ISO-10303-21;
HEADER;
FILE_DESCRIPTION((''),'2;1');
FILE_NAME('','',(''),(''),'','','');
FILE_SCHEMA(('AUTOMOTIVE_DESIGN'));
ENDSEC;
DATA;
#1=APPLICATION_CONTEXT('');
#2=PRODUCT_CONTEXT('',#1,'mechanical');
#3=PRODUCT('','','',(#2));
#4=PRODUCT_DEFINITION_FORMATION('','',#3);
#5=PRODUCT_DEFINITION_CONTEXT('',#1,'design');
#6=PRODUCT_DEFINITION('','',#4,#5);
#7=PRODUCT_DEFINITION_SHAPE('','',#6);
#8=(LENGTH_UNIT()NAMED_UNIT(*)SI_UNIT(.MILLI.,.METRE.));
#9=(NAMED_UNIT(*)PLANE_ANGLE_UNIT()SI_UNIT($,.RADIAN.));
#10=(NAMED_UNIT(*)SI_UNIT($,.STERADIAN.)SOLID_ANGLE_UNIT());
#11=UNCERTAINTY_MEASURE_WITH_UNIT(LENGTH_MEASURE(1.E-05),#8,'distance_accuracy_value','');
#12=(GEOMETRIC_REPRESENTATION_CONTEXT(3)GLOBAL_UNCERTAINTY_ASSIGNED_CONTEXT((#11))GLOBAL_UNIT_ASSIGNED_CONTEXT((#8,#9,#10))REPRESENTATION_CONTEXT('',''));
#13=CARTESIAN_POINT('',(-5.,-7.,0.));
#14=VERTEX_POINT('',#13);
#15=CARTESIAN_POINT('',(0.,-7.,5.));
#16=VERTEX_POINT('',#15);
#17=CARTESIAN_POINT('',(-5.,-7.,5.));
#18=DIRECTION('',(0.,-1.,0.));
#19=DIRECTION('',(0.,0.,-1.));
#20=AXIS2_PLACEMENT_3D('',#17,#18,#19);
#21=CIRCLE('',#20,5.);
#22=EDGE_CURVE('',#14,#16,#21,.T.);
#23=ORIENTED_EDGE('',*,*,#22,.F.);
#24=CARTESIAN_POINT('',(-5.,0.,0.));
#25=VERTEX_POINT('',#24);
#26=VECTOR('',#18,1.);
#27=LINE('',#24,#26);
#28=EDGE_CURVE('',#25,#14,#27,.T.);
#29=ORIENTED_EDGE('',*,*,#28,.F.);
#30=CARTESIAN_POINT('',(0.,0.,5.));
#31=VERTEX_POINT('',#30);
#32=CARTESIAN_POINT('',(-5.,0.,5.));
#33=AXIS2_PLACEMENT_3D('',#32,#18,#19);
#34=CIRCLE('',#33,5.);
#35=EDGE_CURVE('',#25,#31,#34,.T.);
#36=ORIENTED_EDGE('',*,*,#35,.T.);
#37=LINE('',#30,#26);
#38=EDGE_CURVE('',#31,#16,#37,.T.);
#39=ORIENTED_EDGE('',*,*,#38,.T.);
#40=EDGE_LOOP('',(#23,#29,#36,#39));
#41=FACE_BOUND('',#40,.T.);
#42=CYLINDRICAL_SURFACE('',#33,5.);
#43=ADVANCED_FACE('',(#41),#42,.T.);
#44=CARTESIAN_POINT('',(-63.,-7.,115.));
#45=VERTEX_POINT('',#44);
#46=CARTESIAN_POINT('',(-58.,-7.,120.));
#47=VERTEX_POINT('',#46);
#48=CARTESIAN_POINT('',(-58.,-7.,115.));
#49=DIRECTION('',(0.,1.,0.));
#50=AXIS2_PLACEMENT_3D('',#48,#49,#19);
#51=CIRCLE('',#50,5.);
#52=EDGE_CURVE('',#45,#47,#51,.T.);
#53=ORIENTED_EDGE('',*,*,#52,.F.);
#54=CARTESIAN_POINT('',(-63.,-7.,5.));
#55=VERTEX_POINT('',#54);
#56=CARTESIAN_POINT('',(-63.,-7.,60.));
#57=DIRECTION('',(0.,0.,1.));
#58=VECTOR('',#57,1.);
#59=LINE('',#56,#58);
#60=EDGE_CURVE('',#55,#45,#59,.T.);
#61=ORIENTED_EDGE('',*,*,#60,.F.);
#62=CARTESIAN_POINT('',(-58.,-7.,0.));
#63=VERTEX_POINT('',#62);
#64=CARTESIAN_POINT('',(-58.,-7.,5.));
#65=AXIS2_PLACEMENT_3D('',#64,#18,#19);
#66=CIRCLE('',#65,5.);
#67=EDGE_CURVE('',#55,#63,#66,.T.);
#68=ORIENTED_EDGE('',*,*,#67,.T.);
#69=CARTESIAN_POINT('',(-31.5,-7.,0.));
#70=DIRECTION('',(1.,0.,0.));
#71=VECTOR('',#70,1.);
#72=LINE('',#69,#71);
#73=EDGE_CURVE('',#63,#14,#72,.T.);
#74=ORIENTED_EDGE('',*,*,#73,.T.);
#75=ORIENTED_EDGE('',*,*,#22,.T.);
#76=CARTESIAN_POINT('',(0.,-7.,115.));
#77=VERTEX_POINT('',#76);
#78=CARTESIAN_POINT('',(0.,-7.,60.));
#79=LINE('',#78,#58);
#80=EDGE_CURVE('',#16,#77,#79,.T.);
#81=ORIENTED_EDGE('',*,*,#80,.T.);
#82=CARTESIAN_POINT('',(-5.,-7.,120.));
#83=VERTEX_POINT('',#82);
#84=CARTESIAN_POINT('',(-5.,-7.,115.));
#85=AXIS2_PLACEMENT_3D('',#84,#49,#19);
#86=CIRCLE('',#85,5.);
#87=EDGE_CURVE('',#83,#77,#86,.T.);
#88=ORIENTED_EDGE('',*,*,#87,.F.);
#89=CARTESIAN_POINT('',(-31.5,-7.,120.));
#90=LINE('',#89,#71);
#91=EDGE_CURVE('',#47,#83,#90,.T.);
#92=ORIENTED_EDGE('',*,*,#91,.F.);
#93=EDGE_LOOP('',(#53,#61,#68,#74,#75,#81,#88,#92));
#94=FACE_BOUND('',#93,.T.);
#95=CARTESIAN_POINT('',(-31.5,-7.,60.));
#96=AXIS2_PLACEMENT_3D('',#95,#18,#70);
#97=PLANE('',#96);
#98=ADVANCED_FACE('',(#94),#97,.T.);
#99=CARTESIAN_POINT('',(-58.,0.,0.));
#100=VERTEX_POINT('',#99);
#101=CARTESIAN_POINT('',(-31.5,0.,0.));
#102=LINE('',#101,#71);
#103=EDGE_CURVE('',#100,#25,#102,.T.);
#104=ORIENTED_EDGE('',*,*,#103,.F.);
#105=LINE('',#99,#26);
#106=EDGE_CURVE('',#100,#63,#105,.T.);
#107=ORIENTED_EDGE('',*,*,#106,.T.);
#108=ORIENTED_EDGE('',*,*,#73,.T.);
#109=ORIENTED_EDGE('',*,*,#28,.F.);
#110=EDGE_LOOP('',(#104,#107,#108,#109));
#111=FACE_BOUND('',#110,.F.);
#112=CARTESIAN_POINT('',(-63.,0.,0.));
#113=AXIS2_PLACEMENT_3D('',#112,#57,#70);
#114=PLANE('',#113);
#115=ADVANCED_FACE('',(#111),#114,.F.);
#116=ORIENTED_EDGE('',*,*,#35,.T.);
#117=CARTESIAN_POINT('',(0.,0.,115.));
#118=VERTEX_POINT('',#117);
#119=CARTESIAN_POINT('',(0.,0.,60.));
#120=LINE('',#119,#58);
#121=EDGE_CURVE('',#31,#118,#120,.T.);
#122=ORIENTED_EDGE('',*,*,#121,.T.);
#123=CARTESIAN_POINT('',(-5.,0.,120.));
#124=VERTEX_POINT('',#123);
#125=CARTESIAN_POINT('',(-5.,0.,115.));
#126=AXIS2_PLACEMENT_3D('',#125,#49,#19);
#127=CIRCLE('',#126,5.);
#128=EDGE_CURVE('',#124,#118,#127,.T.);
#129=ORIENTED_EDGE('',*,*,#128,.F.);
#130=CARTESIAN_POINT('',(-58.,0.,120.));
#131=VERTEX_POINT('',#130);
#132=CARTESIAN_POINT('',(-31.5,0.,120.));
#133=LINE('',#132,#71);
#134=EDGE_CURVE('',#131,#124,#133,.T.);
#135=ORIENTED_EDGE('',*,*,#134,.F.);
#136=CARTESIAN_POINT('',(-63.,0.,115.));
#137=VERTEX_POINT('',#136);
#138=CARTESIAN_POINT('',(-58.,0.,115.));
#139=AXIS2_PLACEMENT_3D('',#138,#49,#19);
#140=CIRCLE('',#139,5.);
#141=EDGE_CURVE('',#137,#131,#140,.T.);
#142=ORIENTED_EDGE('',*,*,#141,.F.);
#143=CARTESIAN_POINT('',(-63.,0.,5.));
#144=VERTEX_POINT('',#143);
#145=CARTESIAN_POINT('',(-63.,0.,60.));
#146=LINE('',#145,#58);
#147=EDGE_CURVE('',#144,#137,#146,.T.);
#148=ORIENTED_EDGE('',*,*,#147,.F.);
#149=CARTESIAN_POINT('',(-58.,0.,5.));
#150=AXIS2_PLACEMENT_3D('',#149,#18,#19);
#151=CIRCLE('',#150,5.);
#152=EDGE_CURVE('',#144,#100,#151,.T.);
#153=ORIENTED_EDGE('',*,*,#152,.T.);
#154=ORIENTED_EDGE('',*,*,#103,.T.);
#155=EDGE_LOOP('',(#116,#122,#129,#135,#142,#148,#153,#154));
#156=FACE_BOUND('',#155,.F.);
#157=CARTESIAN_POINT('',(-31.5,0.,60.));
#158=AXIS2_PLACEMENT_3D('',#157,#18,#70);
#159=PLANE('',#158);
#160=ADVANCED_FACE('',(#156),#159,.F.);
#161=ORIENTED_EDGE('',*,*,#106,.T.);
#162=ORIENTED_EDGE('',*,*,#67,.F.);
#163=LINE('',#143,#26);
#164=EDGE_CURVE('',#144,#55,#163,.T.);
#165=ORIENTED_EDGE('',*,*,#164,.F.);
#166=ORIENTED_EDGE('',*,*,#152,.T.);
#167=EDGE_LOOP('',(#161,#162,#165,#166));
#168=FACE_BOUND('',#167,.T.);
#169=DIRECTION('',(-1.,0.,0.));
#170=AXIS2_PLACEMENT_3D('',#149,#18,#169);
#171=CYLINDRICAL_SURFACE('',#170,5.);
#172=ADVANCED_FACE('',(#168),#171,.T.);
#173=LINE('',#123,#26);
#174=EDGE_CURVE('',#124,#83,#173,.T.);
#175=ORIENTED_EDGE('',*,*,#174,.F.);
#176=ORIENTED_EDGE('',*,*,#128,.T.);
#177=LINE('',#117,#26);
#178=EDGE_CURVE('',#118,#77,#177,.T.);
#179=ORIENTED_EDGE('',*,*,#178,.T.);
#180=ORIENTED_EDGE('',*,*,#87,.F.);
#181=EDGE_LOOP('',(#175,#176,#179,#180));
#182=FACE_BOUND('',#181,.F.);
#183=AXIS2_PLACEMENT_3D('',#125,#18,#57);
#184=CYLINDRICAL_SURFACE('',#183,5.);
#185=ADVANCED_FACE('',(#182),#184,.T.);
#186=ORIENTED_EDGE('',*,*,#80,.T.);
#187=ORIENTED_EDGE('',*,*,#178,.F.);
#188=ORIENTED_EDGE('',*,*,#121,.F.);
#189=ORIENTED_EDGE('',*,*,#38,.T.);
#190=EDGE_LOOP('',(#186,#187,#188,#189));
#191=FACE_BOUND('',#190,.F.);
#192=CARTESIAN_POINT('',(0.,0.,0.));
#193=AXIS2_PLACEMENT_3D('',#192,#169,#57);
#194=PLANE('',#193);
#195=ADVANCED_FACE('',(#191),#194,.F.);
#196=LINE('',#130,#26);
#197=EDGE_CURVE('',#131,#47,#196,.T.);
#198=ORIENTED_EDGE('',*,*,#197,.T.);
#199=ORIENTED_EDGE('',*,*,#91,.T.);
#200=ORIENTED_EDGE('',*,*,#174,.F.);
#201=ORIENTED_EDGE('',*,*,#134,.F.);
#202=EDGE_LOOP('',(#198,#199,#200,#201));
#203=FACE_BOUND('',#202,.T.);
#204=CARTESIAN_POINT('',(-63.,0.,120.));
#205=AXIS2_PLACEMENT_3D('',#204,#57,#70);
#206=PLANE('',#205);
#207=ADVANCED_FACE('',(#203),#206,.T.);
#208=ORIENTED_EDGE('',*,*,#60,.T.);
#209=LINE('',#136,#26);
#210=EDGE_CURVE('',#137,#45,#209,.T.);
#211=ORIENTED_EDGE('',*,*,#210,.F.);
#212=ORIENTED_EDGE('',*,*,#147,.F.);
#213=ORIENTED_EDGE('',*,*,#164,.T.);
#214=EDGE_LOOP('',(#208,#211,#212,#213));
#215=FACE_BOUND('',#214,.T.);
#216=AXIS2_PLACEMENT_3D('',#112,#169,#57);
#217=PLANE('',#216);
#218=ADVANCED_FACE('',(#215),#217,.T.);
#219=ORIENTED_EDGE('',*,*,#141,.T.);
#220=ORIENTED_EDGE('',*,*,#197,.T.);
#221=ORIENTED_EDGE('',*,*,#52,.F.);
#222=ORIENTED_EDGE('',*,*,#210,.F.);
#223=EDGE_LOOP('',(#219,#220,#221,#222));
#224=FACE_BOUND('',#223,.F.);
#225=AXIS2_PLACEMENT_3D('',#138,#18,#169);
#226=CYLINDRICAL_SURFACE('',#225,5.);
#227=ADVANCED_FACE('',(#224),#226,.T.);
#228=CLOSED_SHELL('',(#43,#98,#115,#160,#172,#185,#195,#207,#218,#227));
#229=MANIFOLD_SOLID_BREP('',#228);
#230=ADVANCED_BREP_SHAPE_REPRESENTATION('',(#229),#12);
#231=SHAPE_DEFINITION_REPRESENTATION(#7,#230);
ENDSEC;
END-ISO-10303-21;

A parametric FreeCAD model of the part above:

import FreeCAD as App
import Part
import Sketcher


def edges_at(feature, points):
    """Names of the edges that pass closest to the given points."""
    edges = feature.Shape.Edges
    near = lambda p: min(range(len(edges)), key=lambda i: edges[i].distToShape(Part.Vertex(*p))[0])
    return sorted({f"Edge{near(p) + 1}" for p in points})


def add_polygon(sketch, points):
    """Adds a closed chain of lines whose ends are joined by coincident constraints."""
    first, n = sketch.GeometryCount, len(points)
    for a, b in zip(points, points[1:] + points[:1]):
        sketch.addGeometry(Part.LineSegment(App.Vector(*a, 0), App.Vector(*b, 0)), False)
    for i in range(n):
        sketch.addConstraint(Sketcher.Constraint("Coincident", first + i, 2, first + (i + 1) % n, 1))

doc = App.newDocument("Part")
body = doc.addObject("PartDesign::Body", "Body")

sketch1 = body.newObject("Sketcher::SketchObject", "Sketch")
sketch1.AttachmentSupport = (doc.getObject("XZ_Plane"), [""])
sketch1.MapMode = "FlatFace"
add_polygon(sketch1, [(-63, 120), (-63, 0), (0, 0), (0, 120)])
sketch1.addConstraint([
    Sketcher.Constraint("Vertical", 0),
    Sketcher.Constraint("Horizontal", 1),
    Sketcher.Constraint("Vertical", 2),
    Sketcher.Constraint("Horizontal", 3),
    Sketcher.Constraint("Coincident", 1, 2, -1, 1),
    Sketcher.Constraint("DistanceX", 1, 1, 1, 2, 63.0),
    Sketcher.Constraint("DistanceY", 0, 2, 0, 1, 120.0),
])
pad1 = body.newObject("PartDesign::Pad", "Pad")
pad1.Profile = sketch1
pad1.Length = 7
doc.recompute()

fillet = body.newObject("PartDesign::Fillet", "Fillet")
fillet.Base = (pad1, edges_at(pad1, [(-63, -3.5, 120)]))
fillet.Radius = 5
doc.recompute()

fillet2 = body.newObject("PartDesign::Fillet", "Fillet001")
fillet2.Base = (fillet, edges_at(fillet, [(0, -3.5, 120), (-63, -3.5, 0), (0, -3.5, 0)]))
fillet2.Radius = 5

doc.recompute()
